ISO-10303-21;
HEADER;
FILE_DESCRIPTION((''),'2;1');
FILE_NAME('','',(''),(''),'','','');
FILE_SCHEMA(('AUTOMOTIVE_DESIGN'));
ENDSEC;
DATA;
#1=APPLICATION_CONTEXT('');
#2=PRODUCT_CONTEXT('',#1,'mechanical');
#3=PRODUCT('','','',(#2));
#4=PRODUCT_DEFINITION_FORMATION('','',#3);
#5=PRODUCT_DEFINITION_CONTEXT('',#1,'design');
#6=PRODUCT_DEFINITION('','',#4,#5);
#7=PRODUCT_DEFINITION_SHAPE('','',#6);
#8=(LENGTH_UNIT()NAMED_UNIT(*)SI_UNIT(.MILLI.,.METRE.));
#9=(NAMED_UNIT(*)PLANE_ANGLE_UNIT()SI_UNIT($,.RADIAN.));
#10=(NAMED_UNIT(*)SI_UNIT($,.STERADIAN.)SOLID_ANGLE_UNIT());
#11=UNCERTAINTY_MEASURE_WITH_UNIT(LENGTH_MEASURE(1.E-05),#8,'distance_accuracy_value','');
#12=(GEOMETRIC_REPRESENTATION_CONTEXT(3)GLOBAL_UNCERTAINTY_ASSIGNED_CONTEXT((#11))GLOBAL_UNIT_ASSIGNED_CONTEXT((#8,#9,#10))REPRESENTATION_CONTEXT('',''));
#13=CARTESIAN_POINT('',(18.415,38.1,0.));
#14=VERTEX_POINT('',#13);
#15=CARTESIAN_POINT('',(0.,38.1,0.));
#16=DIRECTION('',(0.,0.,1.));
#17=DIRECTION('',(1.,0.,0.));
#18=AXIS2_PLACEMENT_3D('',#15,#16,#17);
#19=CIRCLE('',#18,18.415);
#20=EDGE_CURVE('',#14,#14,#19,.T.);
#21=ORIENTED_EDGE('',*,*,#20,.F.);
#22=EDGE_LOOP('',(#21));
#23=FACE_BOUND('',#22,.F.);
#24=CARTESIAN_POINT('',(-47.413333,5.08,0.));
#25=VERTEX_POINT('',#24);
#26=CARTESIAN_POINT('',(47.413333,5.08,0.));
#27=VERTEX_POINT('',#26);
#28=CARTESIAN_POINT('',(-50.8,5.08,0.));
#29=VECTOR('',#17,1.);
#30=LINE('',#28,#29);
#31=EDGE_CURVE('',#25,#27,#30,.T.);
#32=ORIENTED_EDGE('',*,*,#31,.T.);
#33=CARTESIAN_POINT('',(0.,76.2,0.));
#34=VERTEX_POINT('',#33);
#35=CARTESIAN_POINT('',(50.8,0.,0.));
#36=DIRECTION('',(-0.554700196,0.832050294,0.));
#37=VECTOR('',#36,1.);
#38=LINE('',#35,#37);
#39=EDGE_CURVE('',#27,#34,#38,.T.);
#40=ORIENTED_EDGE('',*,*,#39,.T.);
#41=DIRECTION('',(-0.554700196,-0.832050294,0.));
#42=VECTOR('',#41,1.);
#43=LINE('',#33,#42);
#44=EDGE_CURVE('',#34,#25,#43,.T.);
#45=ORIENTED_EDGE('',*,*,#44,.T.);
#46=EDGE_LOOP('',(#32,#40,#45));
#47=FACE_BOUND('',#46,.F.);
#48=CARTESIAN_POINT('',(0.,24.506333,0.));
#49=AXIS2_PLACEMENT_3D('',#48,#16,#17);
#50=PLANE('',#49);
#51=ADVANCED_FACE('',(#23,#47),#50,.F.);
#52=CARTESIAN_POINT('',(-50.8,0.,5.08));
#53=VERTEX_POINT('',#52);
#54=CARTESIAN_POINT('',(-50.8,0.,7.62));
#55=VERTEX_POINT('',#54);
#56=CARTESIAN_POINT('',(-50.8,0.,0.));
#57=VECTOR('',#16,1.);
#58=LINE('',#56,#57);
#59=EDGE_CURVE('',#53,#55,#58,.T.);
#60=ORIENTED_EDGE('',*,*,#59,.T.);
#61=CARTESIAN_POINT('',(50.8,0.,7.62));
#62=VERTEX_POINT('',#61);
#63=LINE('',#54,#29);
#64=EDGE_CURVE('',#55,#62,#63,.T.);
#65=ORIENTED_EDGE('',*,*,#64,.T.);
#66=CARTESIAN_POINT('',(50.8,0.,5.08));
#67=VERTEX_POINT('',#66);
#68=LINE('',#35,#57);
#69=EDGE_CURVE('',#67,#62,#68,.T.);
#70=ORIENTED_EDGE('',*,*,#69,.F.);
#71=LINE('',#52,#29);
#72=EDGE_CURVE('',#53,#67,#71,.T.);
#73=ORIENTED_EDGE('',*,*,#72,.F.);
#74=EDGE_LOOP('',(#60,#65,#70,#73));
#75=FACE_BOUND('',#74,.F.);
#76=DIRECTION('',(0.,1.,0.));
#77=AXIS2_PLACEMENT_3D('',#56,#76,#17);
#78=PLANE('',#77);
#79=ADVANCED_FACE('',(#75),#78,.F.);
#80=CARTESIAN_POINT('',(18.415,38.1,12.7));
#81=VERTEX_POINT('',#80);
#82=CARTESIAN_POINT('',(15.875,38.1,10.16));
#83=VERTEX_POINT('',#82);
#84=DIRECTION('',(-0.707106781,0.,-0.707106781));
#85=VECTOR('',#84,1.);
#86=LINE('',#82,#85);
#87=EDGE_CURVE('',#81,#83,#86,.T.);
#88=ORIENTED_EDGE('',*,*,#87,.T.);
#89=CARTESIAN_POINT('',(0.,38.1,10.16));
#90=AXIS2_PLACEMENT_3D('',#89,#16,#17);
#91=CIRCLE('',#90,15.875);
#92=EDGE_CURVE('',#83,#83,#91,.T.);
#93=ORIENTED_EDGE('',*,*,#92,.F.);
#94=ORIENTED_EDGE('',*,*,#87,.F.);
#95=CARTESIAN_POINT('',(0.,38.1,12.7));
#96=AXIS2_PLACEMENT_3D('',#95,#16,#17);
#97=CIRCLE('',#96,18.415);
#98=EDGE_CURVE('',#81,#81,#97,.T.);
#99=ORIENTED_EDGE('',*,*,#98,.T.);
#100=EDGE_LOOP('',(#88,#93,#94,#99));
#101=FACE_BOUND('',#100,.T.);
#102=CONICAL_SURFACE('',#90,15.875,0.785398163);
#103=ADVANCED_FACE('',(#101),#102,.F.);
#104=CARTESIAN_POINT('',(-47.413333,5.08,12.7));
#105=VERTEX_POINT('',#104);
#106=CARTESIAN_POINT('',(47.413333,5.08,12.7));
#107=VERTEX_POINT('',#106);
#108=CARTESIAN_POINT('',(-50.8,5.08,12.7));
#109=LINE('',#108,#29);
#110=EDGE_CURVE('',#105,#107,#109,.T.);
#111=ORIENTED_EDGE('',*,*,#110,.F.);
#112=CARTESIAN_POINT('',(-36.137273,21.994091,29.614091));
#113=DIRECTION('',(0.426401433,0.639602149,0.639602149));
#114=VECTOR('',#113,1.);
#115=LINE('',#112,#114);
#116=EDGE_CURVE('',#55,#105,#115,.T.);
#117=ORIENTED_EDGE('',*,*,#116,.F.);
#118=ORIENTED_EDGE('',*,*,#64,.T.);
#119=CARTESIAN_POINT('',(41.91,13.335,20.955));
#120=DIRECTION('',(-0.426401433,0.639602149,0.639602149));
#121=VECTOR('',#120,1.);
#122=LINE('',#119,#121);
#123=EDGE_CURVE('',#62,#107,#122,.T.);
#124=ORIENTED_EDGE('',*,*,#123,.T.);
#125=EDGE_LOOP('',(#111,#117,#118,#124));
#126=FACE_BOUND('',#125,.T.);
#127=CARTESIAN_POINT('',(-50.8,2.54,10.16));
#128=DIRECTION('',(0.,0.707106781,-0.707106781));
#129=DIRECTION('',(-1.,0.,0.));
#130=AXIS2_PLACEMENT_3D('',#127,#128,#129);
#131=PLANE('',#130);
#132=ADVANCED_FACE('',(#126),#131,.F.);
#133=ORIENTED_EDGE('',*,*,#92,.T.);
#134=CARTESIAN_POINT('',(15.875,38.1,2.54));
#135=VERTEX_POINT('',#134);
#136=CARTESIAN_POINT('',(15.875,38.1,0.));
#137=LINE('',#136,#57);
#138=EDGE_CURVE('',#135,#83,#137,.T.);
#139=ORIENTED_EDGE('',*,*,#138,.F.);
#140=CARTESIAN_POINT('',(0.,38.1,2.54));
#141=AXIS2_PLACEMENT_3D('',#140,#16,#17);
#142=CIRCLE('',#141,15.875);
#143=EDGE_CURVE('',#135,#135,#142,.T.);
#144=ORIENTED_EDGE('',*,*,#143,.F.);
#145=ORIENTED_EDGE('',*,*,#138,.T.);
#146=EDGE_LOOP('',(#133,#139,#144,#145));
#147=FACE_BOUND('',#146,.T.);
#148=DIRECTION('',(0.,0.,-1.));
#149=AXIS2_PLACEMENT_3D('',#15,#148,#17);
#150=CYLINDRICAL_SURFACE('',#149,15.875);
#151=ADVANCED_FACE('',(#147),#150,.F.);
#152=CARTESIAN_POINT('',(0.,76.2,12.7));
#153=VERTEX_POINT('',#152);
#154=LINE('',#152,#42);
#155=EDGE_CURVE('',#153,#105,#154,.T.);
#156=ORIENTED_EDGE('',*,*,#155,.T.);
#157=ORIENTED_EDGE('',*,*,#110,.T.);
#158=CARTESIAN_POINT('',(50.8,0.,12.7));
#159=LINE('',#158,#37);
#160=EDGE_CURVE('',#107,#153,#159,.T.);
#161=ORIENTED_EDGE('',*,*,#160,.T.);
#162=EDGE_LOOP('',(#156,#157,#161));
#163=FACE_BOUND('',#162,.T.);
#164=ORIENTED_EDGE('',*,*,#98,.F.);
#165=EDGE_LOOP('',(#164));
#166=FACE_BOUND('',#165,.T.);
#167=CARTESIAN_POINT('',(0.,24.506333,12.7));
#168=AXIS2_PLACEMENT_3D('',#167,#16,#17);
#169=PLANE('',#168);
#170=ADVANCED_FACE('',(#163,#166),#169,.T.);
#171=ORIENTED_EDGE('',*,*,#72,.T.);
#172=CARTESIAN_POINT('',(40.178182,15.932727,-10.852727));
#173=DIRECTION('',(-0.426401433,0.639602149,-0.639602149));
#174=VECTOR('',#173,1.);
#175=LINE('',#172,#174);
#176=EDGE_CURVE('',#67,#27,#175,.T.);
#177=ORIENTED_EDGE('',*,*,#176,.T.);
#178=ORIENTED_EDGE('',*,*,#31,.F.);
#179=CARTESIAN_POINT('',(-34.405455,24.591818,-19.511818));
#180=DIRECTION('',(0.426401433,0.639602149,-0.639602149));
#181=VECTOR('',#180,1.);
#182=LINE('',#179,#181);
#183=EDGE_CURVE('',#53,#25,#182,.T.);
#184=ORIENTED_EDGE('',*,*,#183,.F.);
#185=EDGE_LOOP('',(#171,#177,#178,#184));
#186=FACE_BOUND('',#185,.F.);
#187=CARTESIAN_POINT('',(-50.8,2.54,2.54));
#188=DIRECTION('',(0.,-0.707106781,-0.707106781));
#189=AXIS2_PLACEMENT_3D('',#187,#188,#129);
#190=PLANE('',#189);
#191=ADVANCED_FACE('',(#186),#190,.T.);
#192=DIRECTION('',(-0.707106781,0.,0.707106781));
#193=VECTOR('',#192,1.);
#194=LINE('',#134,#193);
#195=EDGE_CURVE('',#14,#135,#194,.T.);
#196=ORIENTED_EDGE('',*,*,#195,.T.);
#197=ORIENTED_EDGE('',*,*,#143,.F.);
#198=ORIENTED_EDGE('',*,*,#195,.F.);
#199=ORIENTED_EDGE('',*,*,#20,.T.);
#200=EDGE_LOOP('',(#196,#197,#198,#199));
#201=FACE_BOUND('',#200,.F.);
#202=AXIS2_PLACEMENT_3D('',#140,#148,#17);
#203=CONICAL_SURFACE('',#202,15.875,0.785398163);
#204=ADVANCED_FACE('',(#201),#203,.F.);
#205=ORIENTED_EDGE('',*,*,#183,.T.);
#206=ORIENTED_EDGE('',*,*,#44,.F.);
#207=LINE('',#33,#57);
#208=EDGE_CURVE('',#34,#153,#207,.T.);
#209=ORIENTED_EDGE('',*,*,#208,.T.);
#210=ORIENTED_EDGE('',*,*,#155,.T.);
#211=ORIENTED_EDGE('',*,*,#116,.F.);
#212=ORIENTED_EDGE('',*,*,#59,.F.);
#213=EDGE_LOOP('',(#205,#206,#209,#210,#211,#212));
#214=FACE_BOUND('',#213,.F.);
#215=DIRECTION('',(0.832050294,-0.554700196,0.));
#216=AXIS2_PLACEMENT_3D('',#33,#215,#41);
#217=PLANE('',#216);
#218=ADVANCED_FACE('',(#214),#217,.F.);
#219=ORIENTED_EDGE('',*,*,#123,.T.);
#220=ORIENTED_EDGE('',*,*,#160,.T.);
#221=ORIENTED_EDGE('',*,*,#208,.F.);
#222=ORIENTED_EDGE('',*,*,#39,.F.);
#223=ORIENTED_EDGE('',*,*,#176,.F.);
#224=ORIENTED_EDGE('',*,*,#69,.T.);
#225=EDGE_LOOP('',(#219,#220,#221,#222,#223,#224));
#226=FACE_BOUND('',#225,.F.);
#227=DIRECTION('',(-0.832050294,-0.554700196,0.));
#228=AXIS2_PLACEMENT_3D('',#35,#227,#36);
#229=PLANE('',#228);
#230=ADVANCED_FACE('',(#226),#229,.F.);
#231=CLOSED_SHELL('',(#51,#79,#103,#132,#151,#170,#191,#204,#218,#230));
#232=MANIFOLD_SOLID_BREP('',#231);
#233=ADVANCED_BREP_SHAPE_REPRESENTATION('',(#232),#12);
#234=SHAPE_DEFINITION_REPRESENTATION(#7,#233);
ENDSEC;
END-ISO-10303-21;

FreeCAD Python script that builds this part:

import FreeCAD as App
import Part
import Sketcher

V = App.Vector
Q = App.Units.Quantity


def edges_at(feature, points):
    """Names of the edges that pass closest to the given points."""
    edges = feature.Shape.Edges
    near = lambda p: min(range(len(edges)), key=lambda i: edges[i].distToShape(Part.Vertex(*p))[0])
    return sorted({f"Edge{near(p) + 1}" for p in points})


def add_polygon(sketch, points):
    """Adds a closed chain of lines whose ends are joined by coincident constraints."""
    first, n = sketch.GeometryCount, len(points)
    for a, b in zip(points, points[1:] + points[:1]):
        sketch.addGeometry(Part.LineSegment(App.Vector(*a, 0), App.Vector(*b, 0)), False)
    for i in range(n):
        sketch.addConstraint(Sketcher.Constraint("Coincident", first + i, 2, first + (i + 1) % n, 1))

doc = App.newDocument("Part")
body = doc.addObject("PartDesign::Body", "Body")

sketch1 = body.newObject("Sketcher::SketchObject", "Sketch")
sketch1.AttachmentSupport = (doc.getObject("XY_Plane"), [""])
sketch1.MapMode = "FlatFace"
add_polygon(sketch1, [(0, 76), (-51, 0), (51, 0)])
sketch1.addGeometry(Part.Circle(V(0, 38, 0), V(0, 0, 1), 16), False)
sketch1.addConstraint([
    Sketcher.Constraint("Horizontal", 1),
    Sketcher.Constraint("Symmetric", 0, 2, 1, 2, -1, 1),
    Sketcher.Constraint("PointOnObject", 3, 3, -2),
    Sketcher.Constraint("PointOnObject", 2, 2, -2),
    Sketcher.Constraint("Diameter", 3, Q("1.25 in")),
    Sketcher.Constraint("DistanceX", 1, 1, 1, 2, Q("4 in")),
    Sketcher.Constraint("DistanceY", -1, 1, 2, 2, Q("3 in")),
    Sketcher.Constraint("DistanceY", -1, 1, 3, 3, Q("1.5 in")),
])
pad1 = body.newObject("PartDesign::Pad", "Pad")
pad1.Profile = sketch1
pad1.Length = Q("0.5 in")
doc.recompute()

chamfer = body.newObject("PartDesign::Chamfer", "Chamfer")
chamfer.Base = (pad1, edges_at(pad1, [(0, 0, 12.7), (0, 0, 0)]))
chamfer.Size = Q("0.2 in")
doc.recompute()

chamfer2 = body.newObject("PartDesign::Chamfer", "Chamfer001")
chamfer2.Base = (chamfer, edges_at(chamfer, [(-15.875, 38.1, 0), (-15.875, 38.1, 12.7)]))
chamfer2.Size = Q("0.1 in")

doc.recompute()
